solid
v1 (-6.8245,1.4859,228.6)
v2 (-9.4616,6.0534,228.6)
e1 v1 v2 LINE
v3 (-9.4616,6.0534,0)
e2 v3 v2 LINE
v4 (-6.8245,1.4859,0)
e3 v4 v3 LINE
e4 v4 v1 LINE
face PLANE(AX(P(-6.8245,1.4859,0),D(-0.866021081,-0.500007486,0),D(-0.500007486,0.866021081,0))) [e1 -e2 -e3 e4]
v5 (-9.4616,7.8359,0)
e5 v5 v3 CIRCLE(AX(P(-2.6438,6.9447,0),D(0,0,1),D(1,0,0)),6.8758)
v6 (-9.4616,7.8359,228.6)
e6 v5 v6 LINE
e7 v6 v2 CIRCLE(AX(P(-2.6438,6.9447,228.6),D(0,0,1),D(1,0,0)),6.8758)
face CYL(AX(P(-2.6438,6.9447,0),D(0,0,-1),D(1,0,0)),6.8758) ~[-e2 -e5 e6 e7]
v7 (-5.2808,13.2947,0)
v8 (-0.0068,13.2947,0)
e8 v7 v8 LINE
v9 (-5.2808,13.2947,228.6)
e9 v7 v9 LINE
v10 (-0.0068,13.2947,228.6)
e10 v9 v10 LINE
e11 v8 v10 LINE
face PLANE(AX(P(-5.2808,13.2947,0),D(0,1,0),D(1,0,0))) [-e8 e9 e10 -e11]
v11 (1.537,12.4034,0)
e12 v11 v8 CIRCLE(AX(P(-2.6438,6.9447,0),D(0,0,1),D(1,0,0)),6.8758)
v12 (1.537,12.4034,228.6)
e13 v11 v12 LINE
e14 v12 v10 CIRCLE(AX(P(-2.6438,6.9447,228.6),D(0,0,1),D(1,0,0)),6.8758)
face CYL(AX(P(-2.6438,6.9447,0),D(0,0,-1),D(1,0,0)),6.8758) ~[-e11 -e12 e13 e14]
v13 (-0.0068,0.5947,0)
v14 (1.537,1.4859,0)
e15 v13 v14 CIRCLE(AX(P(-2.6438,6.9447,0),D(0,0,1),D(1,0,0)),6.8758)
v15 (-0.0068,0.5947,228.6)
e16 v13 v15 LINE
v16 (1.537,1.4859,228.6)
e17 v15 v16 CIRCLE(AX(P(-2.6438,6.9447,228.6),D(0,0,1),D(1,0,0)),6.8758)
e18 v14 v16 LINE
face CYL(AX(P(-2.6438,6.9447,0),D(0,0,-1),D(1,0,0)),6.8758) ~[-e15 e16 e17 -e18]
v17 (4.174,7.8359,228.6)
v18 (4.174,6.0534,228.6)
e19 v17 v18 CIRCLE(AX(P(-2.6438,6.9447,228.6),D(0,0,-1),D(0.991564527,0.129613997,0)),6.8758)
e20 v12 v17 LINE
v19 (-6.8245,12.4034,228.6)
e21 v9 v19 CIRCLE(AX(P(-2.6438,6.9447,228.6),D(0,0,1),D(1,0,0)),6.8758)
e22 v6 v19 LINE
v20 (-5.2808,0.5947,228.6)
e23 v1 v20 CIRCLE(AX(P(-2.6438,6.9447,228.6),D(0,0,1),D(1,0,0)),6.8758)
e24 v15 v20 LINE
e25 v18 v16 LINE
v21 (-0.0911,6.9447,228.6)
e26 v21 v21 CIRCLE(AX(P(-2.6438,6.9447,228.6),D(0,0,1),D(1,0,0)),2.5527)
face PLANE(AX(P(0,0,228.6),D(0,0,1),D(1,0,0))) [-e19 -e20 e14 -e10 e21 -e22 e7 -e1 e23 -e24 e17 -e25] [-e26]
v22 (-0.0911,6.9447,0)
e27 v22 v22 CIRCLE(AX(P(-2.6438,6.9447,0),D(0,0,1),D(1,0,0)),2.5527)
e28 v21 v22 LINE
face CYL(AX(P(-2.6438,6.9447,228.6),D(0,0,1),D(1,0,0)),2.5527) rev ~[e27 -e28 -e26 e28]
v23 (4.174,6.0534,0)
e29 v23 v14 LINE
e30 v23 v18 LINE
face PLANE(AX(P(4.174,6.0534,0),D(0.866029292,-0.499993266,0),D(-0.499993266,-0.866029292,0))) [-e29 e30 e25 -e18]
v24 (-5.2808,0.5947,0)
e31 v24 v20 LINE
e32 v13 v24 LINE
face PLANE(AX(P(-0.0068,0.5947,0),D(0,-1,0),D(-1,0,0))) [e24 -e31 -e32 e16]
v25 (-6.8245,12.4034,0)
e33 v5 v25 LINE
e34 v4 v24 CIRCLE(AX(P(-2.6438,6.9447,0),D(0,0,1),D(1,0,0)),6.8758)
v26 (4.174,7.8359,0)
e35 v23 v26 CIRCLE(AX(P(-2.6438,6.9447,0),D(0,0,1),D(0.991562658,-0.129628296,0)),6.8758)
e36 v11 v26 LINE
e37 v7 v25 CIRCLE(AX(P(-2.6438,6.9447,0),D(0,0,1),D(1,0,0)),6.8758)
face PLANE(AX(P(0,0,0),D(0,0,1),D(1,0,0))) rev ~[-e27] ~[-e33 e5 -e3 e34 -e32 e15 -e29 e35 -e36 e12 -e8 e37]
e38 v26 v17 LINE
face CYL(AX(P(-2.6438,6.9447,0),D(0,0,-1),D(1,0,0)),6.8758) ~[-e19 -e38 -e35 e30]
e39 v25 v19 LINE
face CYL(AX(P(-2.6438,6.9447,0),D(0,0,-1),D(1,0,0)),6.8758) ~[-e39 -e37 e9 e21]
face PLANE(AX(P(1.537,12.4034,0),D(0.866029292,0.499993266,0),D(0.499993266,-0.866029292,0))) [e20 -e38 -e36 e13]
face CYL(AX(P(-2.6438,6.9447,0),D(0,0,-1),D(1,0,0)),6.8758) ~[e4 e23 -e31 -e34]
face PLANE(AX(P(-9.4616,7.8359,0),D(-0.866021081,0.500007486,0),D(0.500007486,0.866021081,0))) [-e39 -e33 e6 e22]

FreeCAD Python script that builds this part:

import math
import FreeCAD as App
import Part
import Sketcher
from FreeCAD import Vector
Q = App.Units.Quantity

doc = App.newDocument("Part")
body = doc.addObject("PartDesign::Body", "Body")

sketch1 = body.newObject("Sketcher::SketchObject", "Sketch")
sketch1.AttachmentSupport = (doc.getObject("XY_Plane"), [""])
sketch1.MapMode = "FlatFace"
sketch1.addGeometry(Part.ArcOfCircle(Part.Circle(Vector(-2.6, 6.9, 0), Vector(0, 0, 1), 6.9), math.radians(-7.45), math.radians(7.45)), False)
sketch1.addGeometry(Part.LineSegment(Vector(4.2, 7.8, 0), Vector(1.5, 12.4, 0)), False)
sketch1.addGeometry(Part.ArcOfCircle(Part.Circle(Vector(-2.6, 6.9, 0), Vector(0, 0, 1), 6.9), math.radians(52.55), math.radians(67.45)), False)
sketch1.addGeometry(Part.LineSegment(Vector(0, 13.3, 0), Vector(-5.3, 13.3, 0)), False)
sketch1.addGeometry(Part.ArcOfCircle(Part.Circle(Vector(-2.6, 6.9, 0), Vector(0, 0, 1), 6.9), math.radians(112.55), math.radians(127.45)), False)
sketch1.addGeometry(Part.LineSegment(Vector(-6.8, 12.4, 0), Vector(-9.5, 7.8, 0)), False)
sketch1.addGeometry(Part.ArcOfCircle(Part.Circle(Vector(-2.6, 6.9, 0), Vector(0, 0, 1), 6.9), math.radians(172.55), math.radians(187.45)), False)
sketch1.addGeometry(Part.LineSegment(Vector(-9.5, 6.1, 0), Vector(-6.8, 1.5, 0)), False)
sketch1.addGeometry(Part.ArcOfCircle(Part.Circle(Vector(-2.6, 6.9, 0), Vector(0, 0, 1), 6.9), math.radians(-127.45), math.radians(-112.55)), False)
sketch1.addGeometry(Part.LineSegment(Vector(-5.3, 0.6, 0), Vector(0, 0.6, 0)), False)
sketch1.addGeometry(Part.ArcOfCircle(Part.Circle(Vector(-2.6, 6.9, 0), Vector(0, 0, 1), 6.9), math.radians(-67.45), math.radians(-52.55)), False)
sketch1.addGeometry(Part.LineSegment(Vector(1.5, 1.5, 0), Vector(4.2, 6.1, 0)), False)
sketch1.addConstraint(Sketcher.Constraint("Coincident", 0, 2, 1, 1))
sketch1.addConstraint(Sketcher.Constraint("Coincident", 1, 2, 2, 1))
sketch1.addConstraint(Sketcher.Constraint("Coincident", 2, 2, 3, 1))
sketch1.addConstraint(Sketcher.Constraint("Coincident", 3, 2, 4, 1))
sketch1.addConstraint(Sketcher.Constraint("Coincident", 4, 2, 5, 1))
sketch1.addConstraint(Sketcher.Constraint("Coincident", 5, 2, 6, 1))
sketch1.addConstraint(Sketcher.Constraint("Coincident", 6, 2, 7, 1))
sketch1.addConstraint(Sketcher.Constraint("Coincident", 7, 2, 8, 1))
sketch1.addConstraint(Sketcher.Constraint("Coincident", 8, 2, 9, 1))
sketch1.addConstraint(Sketcher.Constraint("Coincident", 9, 2, 10, 1))
sketch1.addConstraint(Sketcher.Constraint("Coincident", 10, 2, 11, 1))
sketch1.addConstraint(Sketcher.Constraint("Coincident", 11, 2, 0, 1))
sketch1.addConstraint(Sketcher.Constraint("Horizontal", 3))
sketch1.addConstraint(Sketcher.Constraint("Horizontal", 9))
sketch1.addConstraint(Sketcher.Constraint("Coincident", 2, 3, 0, 3))
sketch1.addConstraint(Sketcher.Constraint("Coincident", 4, 3, 0, 3))
sketch1.addConstraint(Sketcher.Constraint("Coincident", 6, 3, 0, 3))
sketch1.addConstraint(Sketcher.Constraint("Coincident", 8, 3, 0, 3))
sketch1.addConstraint(Sketcher.Constraint("Coincident", 10, 3, 0, 3))
sketch1.addConstraint(Sketcher.Constraint("Equal", 0, 2))
sketch1.addConstraint(Sketcher.Constraint("Equal", 2, 4))
sketch1.addConstraint(Sketcher.Constraint("Equal", 4, 6))
sketch1.addConstraint(Sketcher.Constraint("Equal", 6, 8))
sketch1.addConstraint(Sketcher.Constraint("Equal", 8, 10))
sketch1.addConstraint(Sketcher.Constraint("Parallel", 1, 7))
sketch1.addConstraint(Sketcher.Constraint("Parallel", 5, 11))
sketch1.addConstraint(Sketcher.Constraint("Horizontal", 1, 2, 4, 2))
sketch1.addConstraint(Sketcher.Constraint("Horizontal", 0, 2, 5, 2))
sketch1.addConstraint(Sketcher.Constraint("Horizontal", 7, 2, 10, 2))
sketch1.addConstraint(Sketcher.Constraint("Vertical", 5, 2, 6, 2))
sketch1.addConstraint(Sketcher.Constraint("Vertical", 3, 2, 8, 2))
sketch1.addConstraint(Sketcher.Constraint("Radius", 0, Q("0.2707 in")))
sketch1.addConstraint(Sketcher.Constraint("Angle", 1, Q("119.9996 deg")))
sketch1.addConstraint(Sketcher.Constraint("DistanceY", 0, 3, 2, 2, Q("0.25 in")))
sketch1.addConstraint(Sketcher.Constraint("DistanceY", 10, 2, 0, 2, Q("0.25 in")))
sketch1.addConstraint(Sketcher.Constraint("DistanceY", -1, 1, 0, 2, Q("0.3085 in")))
sketch1.addConstraint(Sketcher.Constraint("DistanceX", -1, 1, 1, 2, Q("0.0605 in")))
pad1 = body.newObject("PartDesign::Pad", "Pad")
pad1.Profile = sketch1
pad1.Length = Q("9 in")

sketch2 = body.newObject("Sketcher::SketchObject", "Sketch001")
sketch2.AttachmentSupport = (doc.getObject("XY_Plane"), [""])
sketch2.MapMode = "FlatFace"
sketch2.AttachmentOffset = App.Placement(Vector(0, 0, 9 * 25.4), App.Rotation())
sketch2.addGeometry(Part.Circle(Vector(-2.6, 6.9, 0), Vector(0, 0, 1), 2.6), False)
sketch2.addConstraint(Sketcher.Constraint("Diameter", 0, Q("0.201 in")))
sketch2.addConstraint(Sketcher.Constraint("DistanceX", 0, 3, -1, 1, 2.6438))
sketch2.addConstraint(Sketcher.Constraint("DistanceY", -1, 1, 0, 3, 6.9447))
pocket1 = body.newObject("PartDesign::Pocket", "Pocket")
pocket1.Profile = sketch2
pocket1.Length = Q("9 in")

doc.recompute()
